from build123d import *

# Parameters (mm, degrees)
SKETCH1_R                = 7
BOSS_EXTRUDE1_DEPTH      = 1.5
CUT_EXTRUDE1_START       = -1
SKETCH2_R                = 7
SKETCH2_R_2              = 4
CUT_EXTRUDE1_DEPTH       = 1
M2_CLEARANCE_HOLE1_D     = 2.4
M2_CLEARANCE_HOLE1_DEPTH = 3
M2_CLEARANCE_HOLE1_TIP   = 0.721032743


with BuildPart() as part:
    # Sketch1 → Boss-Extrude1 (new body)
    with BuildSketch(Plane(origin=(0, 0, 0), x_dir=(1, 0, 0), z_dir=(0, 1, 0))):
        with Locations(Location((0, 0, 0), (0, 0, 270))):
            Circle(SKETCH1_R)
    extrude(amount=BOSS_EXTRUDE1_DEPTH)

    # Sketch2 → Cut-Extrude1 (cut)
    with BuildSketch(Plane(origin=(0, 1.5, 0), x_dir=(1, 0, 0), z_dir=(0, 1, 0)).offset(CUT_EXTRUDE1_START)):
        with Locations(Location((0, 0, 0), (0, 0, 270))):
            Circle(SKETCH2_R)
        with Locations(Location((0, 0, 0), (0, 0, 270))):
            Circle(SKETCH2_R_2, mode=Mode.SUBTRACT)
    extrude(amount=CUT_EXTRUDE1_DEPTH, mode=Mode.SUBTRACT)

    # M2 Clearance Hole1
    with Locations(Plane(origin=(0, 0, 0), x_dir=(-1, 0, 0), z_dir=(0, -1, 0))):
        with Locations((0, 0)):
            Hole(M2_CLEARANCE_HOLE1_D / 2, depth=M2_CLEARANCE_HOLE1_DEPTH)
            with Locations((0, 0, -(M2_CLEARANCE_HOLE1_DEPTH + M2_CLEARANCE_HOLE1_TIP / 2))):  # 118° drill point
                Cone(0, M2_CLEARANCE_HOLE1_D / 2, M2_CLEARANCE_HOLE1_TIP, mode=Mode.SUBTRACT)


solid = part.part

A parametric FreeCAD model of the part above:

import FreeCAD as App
import Part
import Sketcher
from FreeCAD import Vector
Q = App.Units.Quantity

doc = App.newDocument("Part")
body = doc.addObject("PartDesign::Body", "Body")

# Sketch on XZ plane
sketch1 = body.newObject("Sketcher::SketchObject", "Sketch")
sketch1.AttachmentSupport = (doc.getObject("XZ_Plane"), [""])
sketch1.MapMode = "FlatFace"
sketch1.addGeometry(Part.Circle(Vector(0, 0, 0), Vector(0, 0, 1), 7), False)
sketch1.addConstraint(Sketcher.Constraint("Coincident", 0, 3, -1, 1))
sketch1.addConstraint(Sketcher.Constraint("Diameter", 0, Q("14 mm")))
pad1 = body.newObject("PartDesign::Pad", "Pad")
pad1.Profile = sketch1
pad1.Length = 1.5
pad1.Reversed = True

# Sketch on XZ plane
sketch2 = body.newObject("Sketcher::SketchObject", "Sketch001")
sketch2.AttachmentSupport = (doc.getObject("XZ_Plane"), [""])
sketch2.MapMode = "FlatFace"
sketch2.AttachmentOffset = App.Placement(Vector(0, 0, -0.5), App.Rotation())
sketch2.addGeometry(Part.Circle(Vector(0, 0, 0), Vector(0, 0, 1), 7), False)
sketch2.addGeometry(Part.Circle(Vector(0, 0, 0), Vector(0, 0, 1), 4), False)
sketch2.addConstraint(Sketcher.Constraint("Coincident", 0, 3, -1, 1))
sketch2.addConstraint(Sketcher.Constraint("Coincident", 1, 3, -1, 1))
sketch2.addConstraint(Sketcher.Constraint("Diameter", 0, Q("14 mm")))
sketch2.addConstraint(Sketcher.Constraint("Diameter", 1, Q("8 mm")))
pocket1 = body.newObject("PartDesign::Pocket", "Pocket")
pocket1.Profile = sketch2
pocket1.Length = 1

# Sketch on XZ plane
sketch3 = body.newObject("Sketcher::SketchObject", "Sketch002")
sketch3.AttachmentSupport = (doc.getObject("XZ_Plane"), [""])
sketch3.MapMode = "FlatFace"
sketch3.addGeometry(Part.Circle(Vector(0, 0, 0), Vector(0, 0, 1), 1.2), False)
sketch3.addConstraint(Sketcher.Constraint("Coincident", 0, 3, -1, 1))
sketch3.addConstraint(Sketcher.Constraint("Diameter", 0, Q("2.4 mm")))
doc.recompute()
hole = body.newObject("PartDesign::Hole", "Hole")
hole.Profile = sketch3
hole.ThreadType = "None"
hole.Diameter = 2.4
hole.DepthType = "Dimension"
hole.Depth = 3
hole.DrillPoint = "Angled"
hole.DrillPointAngle = 118

doc.recompute()
